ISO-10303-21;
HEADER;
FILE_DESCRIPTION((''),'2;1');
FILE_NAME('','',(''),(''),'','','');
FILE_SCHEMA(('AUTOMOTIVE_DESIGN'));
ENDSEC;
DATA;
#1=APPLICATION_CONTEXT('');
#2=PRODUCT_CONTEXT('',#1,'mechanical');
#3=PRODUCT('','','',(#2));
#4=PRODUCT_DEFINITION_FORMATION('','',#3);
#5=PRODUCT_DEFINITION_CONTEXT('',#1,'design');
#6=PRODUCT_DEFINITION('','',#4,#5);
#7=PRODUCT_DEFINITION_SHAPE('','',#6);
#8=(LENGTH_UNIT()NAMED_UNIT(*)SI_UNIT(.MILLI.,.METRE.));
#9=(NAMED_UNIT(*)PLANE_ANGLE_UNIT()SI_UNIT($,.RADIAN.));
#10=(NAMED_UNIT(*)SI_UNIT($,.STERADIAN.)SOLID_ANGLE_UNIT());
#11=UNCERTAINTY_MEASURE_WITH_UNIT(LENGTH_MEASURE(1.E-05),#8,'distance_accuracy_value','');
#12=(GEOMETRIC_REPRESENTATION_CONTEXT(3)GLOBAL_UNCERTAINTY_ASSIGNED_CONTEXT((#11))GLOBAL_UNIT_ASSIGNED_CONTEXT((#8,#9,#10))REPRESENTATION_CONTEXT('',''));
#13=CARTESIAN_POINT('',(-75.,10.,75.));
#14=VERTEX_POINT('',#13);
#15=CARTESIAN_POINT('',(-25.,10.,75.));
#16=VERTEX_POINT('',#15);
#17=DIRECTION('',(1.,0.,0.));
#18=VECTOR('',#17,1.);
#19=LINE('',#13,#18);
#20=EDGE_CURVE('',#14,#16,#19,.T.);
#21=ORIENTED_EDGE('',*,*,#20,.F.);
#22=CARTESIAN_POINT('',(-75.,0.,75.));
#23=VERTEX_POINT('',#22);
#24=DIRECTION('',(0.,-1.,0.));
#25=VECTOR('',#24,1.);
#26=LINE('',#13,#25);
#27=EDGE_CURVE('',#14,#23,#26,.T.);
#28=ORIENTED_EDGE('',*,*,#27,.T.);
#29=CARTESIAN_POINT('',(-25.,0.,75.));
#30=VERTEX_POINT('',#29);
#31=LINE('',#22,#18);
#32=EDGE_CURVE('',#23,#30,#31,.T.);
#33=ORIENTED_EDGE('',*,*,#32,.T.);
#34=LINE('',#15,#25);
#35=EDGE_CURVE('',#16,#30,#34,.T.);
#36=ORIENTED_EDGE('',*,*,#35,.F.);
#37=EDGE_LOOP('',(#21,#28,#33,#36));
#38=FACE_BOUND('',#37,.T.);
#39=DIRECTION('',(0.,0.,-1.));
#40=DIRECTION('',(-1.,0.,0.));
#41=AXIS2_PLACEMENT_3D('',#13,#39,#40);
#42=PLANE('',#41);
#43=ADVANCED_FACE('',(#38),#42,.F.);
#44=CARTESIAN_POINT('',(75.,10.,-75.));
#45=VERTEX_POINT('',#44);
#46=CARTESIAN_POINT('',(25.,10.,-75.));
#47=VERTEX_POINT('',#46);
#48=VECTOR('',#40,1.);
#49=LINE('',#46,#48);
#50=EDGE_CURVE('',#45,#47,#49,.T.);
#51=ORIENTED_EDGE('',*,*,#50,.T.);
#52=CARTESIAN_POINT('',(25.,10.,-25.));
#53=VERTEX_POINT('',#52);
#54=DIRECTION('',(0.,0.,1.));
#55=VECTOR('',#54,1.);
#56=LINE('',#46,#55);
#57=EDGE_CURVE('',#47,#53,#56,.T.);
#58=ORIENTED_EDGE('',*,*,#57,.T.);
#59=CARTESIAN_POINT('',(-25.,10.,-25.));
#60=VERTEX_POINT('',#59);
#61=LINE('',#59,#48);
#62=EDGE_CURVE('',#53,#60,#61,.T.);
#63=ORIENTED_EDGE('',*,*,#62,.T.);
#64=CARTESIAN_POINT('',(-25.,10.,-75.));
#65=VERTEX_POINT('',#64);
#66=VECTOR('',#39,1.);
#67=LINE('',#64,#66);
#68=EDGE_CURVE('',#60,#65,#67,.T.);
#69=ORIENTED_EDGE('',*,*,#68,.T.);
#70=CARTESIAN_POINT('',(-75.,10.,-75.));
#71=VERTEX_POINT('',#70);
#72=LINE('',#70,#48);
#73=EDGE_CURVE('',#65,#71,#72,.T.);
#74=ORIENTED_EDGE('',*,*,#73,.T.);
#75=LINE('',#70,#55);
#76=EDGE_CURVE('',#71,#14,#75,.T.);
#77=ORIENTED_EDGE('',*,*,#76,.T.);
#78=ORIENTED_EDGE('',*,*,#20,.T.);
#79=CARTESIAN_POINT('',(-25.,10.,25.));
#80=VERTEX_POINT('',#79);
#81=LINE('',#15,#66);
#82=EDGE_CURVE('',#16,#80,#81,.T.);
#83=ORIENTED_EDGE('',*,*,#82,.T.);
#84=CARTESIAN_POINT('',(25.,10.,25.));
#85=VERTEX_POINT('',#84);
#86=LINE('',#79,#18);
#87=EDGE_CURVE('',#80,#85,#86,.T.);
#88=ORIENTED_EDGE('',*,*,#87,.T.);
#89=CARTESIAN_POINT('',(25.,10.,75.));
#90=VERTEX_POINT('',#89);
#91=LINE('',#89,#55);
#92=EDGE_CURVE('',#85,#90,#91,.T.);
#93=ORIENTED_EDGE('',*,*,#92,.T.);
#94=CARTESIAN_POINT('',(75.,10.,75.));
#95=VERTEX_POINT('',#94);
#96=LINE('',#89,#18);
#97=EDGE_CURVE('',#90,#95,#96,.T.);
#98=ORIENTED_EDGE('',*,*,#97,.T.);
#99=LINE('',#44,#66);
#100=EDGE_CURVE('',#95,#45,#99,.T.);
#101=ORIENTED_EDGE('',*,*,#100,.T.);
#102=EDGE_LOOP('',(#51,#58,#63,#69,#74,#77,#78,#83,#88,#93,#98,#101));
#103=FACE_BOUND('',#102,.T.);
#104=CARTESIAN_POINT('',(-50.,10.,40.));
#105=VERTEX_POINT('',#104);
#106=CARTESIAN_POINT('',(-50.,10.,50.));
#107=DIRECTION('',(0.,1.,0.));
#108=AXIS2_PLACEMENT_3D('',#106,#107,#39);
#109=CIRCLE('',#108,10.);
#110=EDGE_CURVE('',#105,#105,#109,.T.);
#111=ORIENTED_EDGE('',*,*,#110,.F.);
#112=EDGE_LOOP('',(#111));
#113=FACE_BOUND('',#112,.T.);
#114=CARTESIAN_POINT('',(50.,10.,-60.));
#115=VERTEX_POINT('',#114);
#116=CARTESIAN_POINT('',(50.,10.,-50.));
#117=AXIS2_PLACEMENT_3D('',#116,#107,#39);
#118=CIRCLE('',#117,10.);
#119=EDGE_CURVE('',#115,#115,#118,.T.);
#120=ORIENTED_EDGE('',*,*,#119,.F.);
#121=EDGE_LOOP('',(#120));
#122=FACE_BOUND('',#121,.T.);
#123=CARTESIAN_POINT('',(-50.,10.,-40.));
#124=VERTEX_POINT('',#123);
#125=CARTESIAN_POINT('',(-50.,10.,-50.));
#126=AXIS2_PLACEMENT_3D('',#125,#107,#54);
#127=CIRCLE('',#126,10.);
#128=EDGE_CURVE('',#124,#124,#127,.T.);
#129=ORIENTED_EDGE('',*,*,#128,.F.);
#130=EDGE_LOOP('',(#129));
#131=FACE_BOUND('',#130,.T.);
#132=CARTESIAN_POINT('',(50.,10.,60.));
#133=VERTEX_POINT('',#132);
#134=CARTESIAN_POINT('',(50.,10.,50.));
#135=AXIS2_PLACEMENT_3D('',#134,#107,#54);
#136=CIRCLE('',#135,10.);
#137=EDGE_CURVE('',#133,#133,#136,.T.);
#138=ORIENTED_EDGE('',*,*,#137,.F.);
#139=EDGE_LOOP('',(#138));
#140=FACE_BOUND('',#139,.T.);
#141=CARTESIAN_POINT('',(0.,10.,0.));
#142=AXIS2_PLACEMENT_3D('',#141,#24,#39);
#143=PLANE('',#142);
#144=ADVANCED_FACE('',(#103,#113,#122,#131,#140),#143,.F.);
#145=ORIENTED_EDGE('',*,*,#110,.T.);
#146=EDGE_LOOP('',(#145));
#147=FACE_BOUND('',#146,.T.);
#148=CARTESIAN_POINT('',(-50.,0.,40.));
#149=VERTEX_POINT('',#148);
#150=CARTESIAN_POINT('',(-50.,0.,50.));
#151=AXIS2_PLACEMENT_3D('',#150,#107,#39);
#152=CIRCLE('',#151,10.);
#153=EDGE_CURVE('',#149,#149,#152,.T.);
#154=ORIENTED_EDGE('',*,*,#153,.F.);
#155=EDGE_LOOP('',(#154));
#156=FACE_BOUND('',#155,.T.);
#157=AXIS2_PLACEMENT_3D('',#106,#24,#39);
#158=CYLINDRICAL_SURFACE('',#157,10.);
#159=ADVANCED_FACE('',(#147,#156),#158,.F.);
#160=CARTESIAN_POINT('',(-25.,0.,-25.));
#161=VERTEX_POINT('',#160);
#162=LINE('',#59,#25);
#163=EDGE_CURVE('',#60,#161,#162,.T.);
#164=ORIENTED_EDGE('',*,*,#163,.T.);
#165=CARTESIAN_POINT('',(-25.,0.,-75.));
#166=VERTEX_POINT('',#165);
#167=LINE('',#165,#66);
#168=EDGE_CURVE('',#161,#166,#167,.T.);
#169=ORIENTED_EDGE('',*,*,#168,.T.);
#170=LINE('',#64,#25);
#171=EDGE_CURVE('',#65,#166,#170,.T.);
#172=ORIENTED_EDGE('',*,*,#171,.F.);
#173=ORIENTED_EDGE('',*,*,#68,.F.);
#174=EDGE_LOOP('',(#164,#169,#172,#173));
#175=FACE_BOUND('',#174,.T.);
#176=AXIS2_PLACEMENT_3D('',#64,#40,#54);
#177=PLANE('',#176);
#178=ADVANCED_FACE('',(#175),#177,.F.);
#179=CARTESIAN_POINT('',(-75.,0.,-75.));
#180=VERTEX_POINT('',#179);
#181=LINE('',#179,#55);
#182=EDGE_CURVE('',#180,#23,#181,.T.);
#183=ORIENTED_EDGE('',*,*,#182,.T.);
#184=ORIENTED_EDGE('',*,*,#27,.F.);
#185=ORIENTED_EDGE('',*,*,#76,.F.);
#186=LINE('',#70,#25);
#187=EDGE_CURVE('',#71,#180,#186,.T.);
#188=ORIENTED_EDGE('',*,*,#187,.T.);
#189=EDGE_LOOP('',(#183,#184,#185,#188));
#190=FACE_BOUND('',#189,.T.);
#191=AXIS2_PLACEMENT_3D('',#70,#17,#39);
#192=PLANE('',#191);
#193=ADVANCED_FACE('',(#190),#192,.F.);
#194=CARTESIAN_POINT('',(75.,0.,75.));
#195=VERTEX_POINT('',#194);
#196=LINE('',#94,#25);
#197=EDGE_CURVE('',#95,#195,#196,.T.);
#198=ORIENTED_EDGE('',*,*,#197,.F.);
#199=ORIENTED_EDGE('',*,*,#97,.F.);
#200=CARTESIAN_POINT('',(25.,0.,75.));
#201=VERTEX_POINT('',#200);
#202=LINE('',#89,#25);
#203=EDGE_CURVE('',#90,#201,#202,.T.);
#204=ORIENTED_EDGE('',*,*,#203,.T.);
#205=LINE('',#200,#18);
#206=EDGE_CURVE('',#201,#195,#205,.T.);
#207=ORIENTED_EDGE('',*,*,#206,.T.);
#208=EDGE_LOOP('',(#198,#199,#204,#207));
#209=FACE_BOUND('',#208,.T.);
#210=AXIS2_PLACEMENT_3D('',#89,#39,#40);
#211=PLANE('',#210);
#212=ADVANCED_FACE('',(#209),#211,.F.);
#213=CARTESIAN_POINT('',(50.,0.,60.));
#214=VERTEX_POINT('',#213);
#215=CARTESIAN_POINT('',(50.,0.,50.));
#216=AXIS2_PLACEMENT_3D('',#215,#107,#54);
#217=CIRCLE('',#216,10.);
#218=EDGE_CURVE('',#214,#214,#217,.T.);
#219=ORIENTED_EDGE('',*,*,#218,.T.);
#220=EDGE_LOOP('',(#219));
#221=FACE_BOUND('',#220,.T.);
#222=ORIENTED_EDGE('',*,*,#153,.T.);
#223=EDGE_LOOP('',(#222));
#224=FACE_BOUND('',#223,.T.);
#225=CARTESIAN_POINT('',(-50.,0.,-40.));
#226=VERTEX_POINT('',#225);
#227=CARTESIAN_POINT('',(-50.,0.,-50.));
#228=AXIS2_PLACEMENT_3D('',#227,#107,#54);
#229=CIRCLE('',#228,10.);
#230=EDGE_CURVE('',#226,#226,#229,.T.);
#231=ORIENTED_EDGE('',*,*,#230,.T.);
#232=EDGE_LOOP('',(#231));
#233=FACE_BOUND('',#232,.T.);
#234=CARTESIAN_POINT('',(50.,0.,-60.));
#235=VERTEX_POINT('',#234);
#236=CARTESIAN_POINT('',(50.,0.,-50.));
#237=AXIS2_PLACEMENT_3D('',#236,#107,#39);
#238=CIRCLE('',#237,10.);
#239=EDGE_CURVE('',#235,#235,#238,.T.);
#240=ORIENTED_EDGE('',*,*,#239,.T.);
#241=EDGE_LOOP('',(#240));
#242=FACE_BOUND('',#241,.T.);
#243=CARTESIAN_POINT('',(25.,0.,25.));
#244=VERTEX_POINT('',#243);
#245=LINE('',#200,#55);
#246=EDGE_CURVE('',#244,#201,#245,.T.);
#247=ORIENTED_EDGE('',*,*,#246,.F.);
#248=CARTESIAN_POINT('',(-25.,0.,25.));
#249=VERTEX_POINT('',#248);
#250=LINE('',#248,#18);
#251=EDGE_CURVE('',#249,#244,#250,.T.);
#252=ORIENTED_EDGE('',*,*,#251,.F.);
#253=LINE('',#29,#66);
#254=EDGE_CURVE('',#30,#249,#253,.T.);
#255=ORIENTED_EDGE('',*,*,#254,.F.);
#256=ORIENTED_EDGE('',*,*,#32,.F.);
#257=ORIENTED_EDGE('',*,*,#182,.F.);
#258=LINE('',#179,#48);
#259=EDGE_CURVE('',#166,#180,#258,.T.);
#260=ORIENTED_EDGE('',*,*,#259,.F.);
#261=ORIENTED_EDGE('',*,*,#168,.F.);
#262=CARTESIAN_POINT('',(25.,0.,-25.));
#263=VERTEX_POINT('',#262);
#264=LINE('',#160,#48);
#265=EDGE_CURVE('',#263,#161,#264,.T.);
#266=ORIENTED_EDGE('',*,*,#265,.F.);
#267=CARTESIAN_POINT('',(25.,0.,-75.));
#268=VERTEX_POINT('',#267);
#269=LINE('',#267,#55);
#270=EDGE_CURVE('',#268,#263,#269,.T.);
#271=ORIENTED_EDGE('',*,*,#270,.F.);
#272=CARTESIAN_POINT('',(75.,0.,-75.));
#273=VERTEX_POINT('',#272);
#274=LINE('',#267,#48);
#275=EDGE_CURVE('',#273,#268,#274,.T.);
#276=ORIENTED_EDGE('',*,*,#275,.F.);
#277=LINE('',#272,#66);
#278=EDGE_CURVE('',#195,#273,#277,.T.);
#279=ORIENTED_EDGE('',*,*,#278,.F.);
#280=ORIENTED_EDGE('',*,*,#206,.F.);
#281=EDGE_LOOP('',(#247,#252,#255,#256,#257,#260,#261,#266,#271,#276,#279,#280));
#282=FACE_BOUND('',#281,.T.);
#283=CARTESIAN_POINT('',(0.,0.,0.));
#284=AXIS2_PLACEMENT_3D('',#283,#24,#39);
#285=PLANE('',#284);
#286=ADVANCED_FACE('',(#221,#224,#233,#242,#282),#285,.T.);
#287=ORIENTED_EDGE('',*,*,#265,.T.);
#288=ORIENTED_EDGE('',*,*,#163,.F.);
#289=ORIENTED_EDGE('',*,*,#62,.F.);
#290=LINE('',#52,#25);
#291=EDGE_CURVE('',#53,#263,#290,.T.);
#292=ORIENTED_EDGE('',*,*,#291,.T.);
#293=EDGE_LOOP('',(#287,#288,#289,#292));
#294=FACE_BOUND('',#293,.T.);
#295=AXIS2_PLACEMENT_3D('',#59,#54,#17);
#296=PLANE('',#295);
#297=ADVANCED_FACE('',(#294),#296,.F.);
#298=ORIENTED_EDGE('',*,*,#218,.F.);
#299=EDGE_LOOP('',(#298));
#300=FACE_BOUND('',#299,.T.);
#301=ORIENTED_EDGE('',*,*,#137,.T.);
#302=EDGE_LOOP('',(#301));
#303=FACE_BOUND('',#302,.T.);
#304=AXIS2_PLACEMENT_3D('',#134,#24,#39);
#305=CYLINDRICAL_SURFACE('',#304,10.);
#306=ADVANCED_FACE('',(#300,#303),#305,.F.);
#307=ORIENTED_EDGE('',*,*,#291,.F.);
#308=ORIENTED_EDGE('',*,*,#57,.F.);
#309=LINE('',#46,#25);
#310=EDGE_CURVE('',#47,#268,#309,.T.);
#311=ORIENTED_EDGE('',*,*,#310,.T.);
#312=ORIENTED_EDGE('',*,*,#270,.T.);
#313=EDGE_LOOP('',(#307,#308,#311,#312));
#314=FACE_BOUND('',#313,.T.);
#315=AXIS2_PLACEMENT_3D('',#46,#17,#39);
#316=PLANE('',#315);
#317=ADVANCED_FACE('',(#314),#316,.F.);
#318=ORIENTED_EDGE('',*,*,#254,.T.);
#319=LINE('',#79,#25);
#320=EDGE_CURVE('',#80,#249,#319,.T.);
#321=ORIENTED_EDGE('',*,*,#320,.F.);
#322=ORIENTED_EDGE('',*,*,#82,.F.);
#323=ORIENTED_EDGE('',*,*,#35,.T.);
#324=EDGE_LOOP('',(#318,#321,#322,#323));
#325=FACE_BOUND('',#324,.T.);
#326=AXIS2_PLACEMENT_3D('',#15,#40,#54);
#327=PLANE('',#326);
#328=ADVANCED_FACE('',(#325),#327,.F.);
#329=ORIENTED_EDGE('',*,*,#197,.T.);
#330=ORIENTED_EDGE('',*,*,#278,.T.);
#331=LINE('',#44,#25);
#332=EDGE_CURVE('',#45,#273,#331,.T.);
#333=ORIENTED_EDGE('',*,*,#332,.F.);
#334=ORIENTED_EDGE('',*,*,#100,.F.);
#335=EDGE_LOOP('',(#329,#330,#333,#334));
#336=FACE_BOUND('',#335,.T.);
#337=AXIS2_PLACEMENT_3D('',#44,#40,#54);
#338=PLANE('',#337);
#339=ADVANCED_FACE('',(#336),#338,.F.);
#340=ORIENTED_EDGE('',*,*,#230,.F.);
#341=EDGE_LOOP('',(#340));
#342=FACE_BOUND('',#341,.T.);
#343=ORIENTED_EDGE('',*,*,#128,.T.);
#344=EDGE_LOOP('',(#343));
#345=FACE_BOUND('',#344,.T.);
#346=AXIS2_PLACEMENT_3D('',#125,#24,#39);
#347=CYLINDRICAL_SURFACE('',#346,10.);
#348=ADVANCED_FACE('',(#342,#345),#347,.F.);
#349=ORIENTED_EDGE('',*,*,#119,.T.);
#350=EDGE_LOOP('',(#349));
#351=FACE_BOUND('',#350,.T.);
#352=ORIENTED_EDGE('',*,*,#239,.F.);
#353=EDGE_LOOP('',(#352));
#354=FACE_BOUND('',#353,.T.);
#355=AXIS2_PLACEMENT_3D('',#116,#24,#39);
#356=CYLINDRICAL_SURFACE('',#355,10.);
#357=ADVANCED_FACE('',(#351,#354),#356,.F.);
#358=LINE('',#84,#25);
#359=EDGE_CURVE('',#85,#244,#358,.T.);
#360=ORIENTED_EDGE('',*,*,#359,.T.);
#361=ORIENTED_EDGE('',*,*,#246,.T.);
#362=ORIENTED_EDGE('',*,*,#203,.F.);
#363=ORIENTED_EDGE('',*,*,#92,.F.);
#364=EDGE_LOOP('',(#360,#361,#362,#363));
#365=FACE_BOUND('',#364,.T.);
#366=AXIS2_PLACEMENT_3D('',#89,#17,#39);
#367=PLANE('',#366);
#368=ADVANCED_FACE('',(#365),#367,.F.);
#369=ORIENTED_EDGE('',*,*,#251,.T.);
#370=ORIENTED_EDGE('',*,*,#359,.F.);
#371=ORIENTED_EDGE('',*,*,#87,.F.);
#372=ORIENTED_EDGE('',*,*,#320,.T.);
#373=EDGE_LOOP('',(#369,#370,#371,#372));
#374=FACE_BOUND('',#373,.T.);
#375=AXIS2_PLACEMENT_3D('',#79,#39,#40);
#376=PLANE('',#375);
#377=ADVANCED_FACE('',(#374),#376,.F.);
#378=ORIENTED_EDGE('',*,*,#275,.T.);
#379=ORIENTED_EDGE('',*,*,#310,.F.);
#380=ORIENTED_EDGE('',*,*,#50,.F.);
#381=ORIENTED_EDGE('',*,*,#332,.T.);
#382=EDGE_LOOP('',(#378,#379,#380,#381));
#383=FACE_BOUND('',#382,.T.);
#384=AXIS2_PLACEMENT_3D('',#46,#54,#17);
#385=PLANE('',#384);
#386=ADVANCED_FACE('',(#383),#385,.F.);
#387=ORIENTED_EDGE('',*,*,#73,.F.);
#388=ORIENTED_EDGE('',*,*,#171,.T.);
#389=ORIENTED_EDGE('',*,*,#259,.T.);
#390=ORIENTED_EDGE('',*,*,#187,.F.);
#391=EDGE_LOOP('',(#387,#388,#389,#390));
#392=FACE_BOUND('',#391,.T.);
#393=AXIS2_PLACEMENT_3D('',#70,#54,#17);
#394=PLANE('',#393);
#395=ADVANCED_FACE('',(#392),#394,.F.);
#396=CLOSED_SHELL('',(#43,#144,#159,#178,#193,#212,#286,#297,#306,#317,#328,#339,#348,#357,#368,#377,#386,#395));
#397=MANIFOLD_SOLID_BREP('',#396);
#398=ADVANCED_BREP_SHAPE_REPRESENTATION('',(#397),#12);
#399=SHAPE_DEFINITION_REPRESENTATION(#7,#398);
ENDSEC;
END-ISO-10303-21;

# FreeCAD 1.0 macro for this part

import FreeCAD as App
import Part
import Sketcher

V = App.Vector


def add_polygon(sketch, points):
    """Adds a closed chain of lines whose ends are joined by coincident constraints."""
    first, n = sketch.GeometryCount, len(points)
    for a, b in zip(points, points[1:] + points[:1]):
        sketch.addGeometry(Part.LineSegment(App.Vector(*a, 0), App.Vector(*b, 0)), False)
    for i in range(n):
        sketch.addConstraint(Sketcher.Constraint("Coincident", first + i, 2, first + (i + 1) % n, 1))

doc = App.newDocument("Part")
body = doc.addObject("PartDesign::Body", "Body")

# Sketch on XZ plane
sketch1 = body.newObject("Sketcher::SketchObject", "Sketch")
sketch1.AttachmentSupport = (doc.getObject("XZ_Plane"), [""])
sketch1.MapMode = "FlatFace"
add_polygon(sketch1, [(75, -75), (25, -75), (25, -25), (-25, -25), (-25, -75), (-75, -75), (-75, 75), (-25, 75), (-25, 25), (25, 25), (25, 75), (75, 75)])  # lines 0-11
sketch1.addGeometry(Part.Circle(V(50, 50, 0), V(0, 0, 1), 10), False)  # 12
sketch1.addGeometry(Part.Circle(V(-50, 50, 0), V(0, 0, 1), 10), False)  # 13
sketch1.addGeometry(Part.Circle(V(50, -50, 0), V(0, 0, 1), 10), False)  # 14
sketch1.addGeometry(Part.Circle(V(-50, -50, 0), V(0, 0, 1), 10), False)  # 15
sketch1.addConstraint([
    Sketcher.Constraint("Horizontal", 0),
    Sketcher.Constraint("Vertical", 1),
    Sketcher.Constraint("Horizontal", 2),
    Sketcher.Constraint("Vertical", 3),
    Sketcher.Constraint("Horizontal", 4),
    Sketcher.Constraint("Vertical", 5),
    Sketcher.Constraint("Horizontal", 6),
    Sketcher.Constraint("Vertical", 7),
    Sketcher.Constraint("Horizontal", 8),
    Sketcher.Constraint("Vertical", 9),
    Sketcher.Constraint("Horizontal", 10),
    Sketcher.Constraint("Vertical", 11),
    Sketcher.Constraint("Equal", 12, 13),
    Sketcher.Constraint("Equal", 13, 14),
    Sketcher.Constraint("Equal", 14, 15),
    Sketcher.Constraint("Symmetric", 13, 3, 14, 3, -1, 1),
    Sketcher.Constraint("Symmetric", 12, 3, 15, 3, -1, 1),
    Sketcher.Constraint("Symmetric", 0, 2, 6, 2, -1, 1),
    Sketcher.Constraint("Symmetric", 2, 2, 8, 2, -1, 1),
    Sketcher.Constraint("Symmetric", 4, 2, 10, 2, -1, 1),
    Sketcher.Constraint("Symmetric", 12, 3, 13, 3, -2),
    Sketcher.Constraint("Symmetric", 0, 2, 3, 2, -2),
    Sketcher.Constraint("Equal", 0, 2),
    Sketcher.Constraint("Equal", 10, 1),
    Sketcher.Constraint("Diameter", 12, 20.0),
    Sketcher.Constraint("DistanceX", 0, 2, 0, 1, 50.0),
    Sketcher.Constraint("DistanceY", 5, 1, 5, 2, 150.0),
    Sketcher.Constraint("DistanceX", -1, 1, 12, 3, 50.0),
    Sketcher.Constraint("DistanceY", -1, 1, 12, 3, 50.0),
])
pad1 = body.newObject("PartDesign::Pad", "Pad")
pad1.Profile = sketch1
pad1.Length = 10
pad1.Reversed = True

doc.recompute()
